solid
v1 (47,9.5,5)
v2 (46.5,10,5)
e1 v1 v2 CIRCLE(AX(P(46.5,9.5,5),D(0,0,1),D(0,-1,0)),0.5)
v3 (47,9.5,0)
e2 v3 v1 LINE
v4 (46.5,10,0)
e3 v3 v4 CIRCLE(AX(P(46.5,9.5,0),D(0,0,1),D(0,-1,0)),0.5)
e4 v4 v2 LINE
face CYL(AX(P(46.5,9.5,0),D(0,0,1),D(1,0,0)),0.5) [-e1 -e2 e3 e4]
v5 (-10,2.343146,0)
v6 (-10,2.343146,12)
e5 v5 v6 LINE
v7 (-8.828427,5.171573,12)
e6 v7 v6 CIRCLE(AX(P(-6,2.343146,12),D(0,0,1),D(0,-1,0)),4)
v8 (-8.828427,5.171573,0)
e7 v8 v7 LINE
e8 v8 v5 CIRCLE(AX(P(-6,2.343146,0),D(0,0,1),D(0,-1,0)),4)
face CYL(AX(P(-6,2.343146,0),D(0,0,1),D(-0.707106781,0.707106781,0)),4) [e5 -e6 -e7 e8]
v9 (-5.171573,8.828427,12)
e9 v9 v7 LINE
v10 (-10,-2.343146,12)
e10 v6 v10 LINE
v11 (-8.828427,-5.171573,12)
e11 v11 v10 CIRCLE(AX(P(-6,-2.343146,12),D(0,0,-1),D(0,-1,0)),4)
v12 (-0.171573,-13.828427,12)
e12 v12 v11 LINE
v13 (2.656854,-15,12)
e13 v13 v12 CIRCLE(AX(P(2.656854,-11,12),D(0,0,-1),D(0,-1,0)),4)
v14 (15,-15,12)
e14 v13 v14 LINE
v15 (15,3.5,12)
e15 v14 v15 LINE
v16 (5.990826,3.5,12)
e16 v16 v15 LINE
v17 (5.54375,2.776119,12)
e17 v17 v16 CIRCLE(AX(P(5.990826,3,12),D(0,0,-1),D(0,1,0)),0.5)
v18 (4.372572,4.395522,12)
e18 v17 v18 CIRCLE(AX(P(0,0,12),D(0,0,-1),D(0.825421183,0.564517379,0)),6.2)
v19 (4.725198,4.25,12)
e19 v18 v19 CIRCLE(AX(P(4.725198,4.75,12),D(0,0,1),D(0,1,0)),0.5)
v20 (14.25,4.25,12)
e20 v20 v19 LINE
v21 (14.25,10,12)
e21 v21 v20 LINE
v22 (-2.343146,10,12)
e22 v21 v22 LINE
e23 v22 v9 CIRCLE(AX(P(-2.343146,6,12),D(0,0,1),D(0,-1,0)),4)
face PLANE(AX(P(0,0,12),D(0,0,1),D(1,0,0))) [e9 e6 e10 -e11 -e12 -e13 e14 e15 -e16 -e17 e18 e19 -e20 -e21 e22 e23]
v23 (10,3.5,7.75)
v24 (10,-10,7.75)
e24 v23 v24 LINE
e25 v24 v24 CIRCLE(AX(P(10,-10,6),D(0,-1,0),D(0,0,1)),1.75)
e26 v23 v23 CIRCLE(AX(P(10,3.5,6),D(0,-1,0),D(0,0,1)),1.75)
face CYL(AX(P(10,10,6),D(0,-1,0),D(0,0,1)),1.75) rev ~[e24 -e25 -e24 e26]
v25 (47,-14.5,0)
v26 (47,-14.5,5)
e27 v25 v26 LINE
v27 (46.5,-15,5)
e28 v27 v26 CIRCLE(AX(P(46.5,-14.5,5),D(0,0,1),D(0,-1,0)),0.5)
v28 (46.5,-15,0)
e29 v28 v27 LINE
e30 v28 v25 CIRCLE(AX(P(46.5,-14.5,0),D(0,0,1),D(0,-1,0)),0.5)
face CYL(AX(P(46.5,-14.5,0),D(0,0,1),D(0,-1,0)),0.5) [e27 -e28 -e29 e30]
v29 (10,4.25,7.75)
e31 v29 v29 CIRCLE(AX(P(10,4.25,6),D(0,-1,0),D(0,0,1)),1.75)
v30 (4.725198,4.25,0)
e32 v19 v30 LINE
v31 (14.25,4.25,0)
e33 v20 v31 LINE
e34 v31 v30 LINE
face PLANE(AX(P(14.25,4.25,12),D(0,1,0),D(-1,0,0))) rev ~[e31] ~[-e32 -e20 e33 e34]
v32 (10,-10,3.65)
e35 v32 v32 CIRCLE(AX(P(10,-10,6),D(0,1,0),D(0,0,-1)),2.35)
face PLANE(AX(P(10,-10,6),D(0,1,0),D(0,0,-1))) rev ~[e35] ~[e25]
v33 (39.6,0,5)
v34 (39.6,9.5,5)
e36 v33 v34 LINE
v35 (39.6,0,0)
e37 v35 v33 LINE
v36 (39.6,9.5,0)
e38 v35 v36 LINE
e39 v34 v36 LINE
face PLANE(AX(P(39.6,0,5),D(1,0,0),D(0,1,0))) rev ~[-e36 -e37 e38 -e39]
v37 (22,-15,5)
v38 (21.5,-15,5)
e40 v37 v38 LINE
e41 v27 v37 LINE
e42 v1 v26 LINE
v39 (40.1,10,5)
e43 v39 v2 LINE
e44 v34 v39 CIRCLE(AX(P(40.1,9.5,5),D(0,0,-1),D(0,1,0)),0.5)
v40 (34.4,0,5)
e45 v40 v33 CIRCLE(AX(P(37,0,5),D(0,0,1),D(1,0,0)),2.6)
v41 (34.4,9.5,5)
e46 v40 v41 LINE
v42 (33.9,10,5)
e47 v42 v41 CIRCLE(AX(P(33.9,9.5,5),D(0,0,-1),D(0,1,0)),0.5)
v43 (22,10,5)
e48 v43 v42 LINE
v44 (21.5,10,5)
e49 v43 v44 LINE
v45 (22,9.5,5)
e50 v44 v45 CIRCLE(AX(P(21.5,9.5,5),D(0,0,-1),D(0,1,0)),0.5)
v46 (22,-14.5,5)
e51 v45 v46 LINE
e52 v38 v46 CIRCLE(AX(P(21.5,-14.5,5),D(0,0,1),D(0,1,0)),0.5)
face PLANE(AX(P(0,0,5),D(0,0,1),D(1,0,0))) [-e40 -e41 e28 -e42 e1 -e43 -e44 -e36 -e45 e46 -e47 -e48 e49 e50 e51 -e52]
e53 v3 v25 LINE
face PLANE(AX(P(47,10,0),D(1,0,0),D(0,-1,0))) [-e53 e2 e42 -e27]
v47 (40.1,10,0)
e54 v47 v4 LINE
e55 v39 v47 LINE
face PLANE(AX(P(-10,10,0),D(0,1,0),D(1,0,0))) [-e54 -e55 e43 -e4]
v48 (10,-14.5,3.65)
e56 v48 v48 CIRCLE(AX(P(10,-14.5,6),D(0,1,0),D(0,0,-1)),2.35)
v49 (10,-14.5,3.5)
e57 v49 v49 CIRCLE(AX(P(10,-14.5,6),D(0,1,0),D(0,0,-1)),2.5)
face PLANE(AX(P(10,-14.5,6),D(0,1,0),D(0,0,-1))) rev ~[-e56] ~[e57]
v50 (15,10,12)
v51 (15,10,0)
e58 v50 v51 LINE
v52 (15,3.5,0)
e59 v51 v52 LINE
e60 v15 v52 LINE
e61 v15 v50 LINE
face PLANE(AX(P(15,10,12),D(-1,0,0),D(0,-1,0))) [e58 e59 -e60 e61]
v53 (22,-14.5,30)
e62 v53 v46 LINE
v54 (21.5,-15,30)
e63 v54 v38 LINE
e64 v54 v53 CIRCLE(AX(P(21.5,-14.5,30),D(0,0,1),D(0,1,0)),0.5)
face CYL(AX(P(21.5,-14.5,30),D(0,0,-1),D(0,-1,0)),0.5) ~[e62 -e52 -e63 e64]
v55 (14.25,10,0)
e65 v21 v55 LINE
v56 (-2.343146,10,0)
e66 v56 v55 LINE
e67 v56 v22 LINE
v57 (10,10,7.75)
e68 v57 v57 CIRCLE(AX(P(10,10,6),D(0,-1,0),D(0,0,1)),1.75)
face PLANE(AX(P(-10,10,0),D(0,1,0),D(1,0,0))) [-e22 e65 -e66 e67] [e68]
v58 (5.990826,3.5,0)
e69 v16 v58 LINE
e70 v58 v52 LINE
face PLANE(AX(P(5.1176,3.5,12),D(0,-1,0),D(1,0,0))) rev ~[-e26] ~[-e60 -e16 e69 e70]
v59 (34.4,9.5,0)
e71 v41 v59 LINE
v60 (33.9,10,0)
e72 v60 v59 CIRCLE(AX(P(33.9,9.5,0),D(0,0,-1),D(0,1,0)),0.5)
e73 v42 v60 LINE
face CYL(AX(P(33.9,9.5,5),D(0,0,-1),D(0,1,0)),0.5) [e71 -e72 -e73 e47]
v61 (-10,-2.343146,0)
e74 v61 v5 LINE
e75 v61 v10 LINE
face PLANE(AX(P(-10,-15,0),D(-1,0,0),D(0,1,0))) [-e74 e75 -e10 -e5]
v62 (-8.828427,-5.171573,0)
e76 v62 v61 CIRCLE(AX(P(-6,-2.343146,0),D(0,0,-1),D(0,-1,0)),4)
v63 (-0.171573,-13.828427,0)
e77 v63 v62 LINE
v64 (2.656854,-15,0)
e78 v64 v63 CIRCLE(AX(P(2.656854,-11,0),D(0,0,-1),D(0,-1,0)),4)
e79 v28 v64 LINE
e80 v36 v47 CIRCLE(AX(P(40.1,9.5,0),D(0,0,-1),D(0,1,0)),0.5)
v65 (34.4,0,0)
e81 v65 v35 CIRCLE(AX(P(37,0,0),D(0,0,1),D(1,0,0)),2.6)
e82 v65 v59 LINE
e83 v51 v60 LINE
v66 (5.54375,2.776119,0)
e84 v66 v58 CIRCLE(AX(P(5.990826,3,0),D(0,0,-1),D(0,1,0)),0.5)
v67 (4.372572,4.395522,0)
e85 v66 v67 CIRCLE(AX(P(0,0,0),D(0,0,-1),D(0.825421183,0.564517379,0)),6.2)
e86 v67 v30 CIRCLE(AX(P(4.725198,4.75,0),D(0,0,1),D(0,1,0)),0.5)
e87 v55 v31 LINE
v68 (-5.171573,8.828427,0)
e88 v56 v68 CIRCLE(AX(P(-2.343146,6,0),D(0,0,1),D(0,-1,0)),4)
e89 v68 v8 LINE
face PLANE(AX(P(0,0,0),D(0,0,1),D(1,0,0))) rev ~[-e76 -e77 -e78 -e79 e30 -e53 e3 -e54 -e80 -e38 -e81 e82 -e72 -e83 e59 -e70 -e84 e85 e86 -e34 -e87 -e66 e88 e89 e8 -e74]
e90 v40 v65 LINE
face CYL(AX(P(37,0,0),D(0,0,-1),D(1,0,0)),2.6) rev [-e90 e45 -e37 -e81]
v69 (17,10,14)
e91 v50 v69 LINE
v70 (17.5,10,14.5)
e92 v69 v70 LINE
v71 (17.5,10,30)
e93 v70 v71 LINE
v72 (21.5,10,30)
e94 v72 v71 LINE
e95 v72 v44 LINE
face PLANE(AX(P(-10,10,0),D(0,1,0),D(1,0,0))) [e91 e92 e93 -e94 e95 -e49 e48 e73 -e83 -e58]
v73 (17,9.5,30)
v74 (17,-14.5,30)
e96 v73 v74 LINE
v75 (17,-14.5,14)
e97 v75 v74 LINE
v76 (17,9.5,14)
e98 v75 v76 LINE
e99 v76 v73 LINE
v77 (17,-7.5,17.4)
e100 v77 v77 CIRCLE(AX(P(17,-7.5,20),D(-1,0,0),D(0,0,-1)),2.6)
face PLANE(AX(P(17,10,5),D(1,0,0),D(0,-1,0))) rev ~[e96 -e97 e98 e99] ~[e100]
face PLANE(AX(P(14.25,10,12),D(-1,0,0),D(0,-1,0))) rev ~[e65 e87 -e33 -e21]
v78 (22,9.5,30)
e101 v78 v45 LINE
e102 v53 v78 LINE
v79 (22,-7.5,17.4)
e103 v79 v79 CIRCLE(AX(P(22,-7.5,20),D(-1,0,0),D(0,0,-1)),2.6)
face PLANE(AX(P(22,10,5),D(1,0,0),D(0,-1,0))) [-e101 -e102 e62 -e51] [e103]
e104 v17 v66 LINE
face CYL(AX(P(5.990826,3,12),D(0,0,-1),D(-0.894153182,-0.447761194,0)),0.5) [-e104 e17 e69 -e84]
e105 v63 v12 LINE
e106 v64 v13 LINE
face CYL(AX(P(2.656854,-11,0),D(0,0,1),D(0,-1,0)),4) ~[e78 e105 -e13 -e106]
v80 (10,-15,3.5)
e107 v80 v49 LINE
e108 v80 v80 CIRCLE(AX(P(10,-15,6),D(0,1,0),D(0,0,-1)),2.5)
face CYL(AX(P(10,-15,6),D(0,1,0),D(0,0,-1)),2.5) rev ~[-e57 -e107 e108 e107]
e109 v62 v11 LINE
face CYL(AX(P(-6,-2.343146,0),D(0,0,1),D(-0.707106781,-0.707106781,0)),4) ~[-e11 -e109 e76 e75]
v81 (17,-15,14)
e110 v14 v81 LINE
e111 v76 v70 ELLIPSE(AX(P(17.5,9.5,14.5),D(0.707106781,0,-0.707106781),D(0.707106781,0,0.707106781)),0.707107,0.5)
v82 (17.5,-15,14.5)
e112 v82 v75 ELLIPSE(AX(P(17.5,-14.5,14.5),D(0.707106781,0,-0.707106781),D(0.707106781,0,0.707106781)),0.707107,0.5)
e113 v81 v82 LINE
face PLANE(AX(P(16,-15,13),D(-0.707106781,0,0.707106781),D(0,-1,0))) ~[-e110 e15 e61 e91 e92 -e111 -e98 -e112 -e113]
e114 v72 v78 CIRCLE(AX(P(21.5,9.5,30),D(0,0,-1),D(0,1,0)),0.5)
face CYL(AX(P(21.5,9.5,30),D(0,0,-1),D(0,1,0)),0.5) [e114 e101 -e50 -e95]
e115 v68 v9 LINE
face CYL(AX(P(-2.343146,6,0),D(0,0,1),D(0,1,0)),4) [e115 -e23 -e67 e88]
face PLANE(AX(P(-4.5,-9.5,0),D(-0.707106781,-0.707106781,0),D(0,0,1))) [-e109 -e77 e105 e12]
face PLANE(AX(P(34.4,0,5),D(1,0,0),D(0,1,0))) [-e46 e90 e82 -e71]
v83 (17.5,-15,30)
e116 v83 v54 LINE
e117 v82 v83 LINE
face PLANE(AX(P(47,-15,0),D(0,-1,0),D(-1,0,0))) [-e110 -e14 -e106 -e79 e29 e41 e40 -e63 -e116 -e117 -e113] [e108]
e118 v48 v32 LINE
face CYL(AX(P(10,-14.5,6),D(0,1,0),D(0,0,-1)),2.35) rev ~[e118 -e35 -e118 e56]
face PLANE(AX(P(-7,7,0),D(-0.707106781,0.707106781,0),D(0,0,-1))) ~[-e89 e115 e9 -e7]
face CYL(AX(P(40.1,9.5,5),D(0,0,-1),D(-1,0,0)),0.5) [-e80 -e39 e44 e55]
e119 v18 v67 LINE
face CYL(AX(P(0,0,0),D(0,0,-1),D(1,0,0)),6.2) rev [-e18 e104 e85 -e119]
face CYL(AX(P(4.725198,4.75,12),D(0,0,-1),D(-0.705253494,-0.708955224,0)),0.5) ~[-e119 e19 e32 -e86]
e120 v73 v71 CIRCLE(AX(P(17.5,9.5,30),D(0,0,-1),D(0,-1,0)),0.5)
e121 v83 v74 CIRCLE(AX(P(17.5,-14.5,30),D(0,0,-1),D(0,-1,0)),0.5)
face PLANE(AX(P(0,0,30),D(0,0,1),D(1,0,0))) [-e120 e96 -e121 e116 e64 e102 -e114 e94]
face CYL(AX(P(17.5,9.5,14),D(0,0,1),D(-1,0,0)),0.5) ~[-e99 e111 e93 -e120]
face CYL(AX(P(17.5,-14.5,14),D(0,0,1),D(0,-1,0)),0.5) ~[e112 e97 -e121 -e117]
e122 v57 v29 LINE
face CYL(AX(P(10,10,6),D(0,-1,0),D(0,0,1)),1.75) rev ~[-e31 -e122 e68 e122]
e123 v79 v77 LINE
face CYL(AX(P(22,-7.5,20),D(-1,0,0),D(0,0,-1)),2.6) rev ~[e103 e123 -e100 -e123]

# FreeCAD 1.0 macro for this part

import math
import FreeCAD as App
import Part
import Sketcher
from FreeCAD import Vector


def edges_at(feature, points):
    """Names of the edges that pass closest to the given points."""
    edges = feature.Shape.Edges
    near = lambda p: min(range(len(edges)), key=lambda i: edges[i].distToShape(Part.Vertex(*p))[0])
    return sorted({f"Edge{near(p) + 1}" for p in points})

doc = App.newDocument("Part")
body = doc.addObject("PartDesign::Body", "Body")

# Sketch on XY plane
sketch1 = body.newObject("Sketcher::SketchObject", "Sketch")
sketch1.AttachmentSupport = (doc.getObject("XY_Plane"), [""])
sketch1.MapMode = "FlatFace"
sketch1.addGeometry(Part.LineSegment(Vector(47, 10, 0), Vector(-10, 10, 0)), False)
sketch1.addGeometry(Part.LineSegment(Vector(-10, 10, 0), Vector(-10, -15, 0)), False)
sketch1.addGeometry(Part.LineSegment(Vector(-10, -15, 0), Vector(47, -15, 0)), False)
sketch1.addGeometry(Part.LineSegment(Vector(47, -15, 0), Vector(47, 10, 0)), False)
sketch1.addGeometry(Part.Circle(Vector(0, 0, 0), Vector(0, 0, 1), 6.2), False)
sketch1.addGeometry(Part.Circle(Vector(37, 0, 0), Vector(0, 0, 1), 2.6), False)
sketch1.addConstraint(Sketcher.Constraint("Coincident", 0, 2, 1, 1))
sketch1.addConstraint(Sketcher.Constraint("Coincident", 1, 2, 2, 1))
sketch1.addConstraint(Sketcher.Constraint("Coincident", 2, 2, 3, 1))
sketch1.addConstraint(Sketcher.Constraint("Coincident", 3, 2, 0, 1))
sketch1.addConstraint(Sketcher.Constraint("Horizontal", 0))
sketch1.addConstraint(Sketcher.Constraint("Vertical", 1))
sketch1.addConstraint(Sketcher.Constraint("Horizontal", 2))
sketch1.addConstraint(Sketcher.Constraint("Vertical", 3))
sketch1.addConstraint(Sketcher.Constraint("Coincident", 4, 3, -1, 1))
sketch1.addConstraint(Sketcher.Constraint("PointOnObject", 5, 3, -1))
sketch1.addConstraint(Sketcher.Constraint("Diameter", 4, 12.4))
sketch1.addConstraint(Sketcher.Constraint("Diameter", 5, 5.2))
sketch1.addConstraint(Sketcher.Constraint("DistanceY", 1, 2, 1, 1, 25.0))
sketch1.addConstraint(Sketcher.Constraint("DistanceX", -1, 1, 5, 3, 37.0))
sketch1.addConstraint(Sketcher.Constraint("DistanceX", 0, 2, -1, 1, 10.0))
sketch1.addConstraint(Sketcher.Constraint("DistanceY", -1, 1, 0, 2, 10.0))
sketch1.addConstraint(Sketcher.Constraint("DistanceX", 5, 3, 2, 2, 10.0))
pad1 = body.newObject("PartDesign::Pad", "Pad")
pad1.Profile = sketch1
pad1.Length = 5

# Sketch on XY plane
sketch2 = body.newObject("Sketcher::SketchObject", "Sketch001")
sketch2.AttachmentSupport = (doc.getObject("XY_Plane"), [""])
sketch2.MapMode = "FlatFace"
sketch2.AttachmentOffset = App.Placement(Vector(0, 0, 5), App.Rotation())
sketch2.addGeometry(Part.LineSegment(Vector(22, -15, 0), Vector(22, 10, 0)), False)
sketch2.addGeometry(Part.LineSegment(Vector(22, 10, 0), Vector(-10, 10, 0)), False)
sketch2.addGeometry(Part.LineSegment(Vector(-10, 10, 0), Vector(-10, -15, 0)), False)
sketch2.addGeometry(Part.LineSegment(Vector(-10, -15, 0), Vector(22, -15, 0)), False)
sketch2.addGeometry(Part.Circle(Vector(0, 0, 0), Vector(0, 0, 1), 6), False)
sketch2.addConstraint(Sketcher.Constraint("Coincident", 0, 2, 1, 1))
sketch2.addConstraint(Sketcher.Constraint("Coincident", 1, 2, 2, 1))
sketch2.addConstraint(Sketcher.Constraint("Coincident", 2, 2, 3, 1))
sketch2.addConstraint(Sketcher.Constraint("Coincident", 3, 2, 0, 1))
sketch2.addConstraint(Sketcher.Constraint("Vertical", 0))
sketch2.addConstraint(Sketcher.Constraint("Horizontal", 1))
sketch2.addConstraint(Sketcher.Constraint("Vertical", 2))
sketch2.addConstraint(Sketcher.Constraint("Horizontal", 3))
sketch2.addConstraint(Sketcher.Constraint("Coincident", 4, 3, -1, 1))
sketch2.addConstraint(Sketcher.Constraint("DistanceX", -1, 1, 0, 2, 22.0))
sketch2.addConstraint(Sketcher.Constraint("Diameter", 4, 12.4))
sketch2.addConstraint(Sketcher.Constraint("DistanceX", 1, 2, 1, 1, 32.0))
sketch2.addConstraint(Sketcher.Constraint("DistanceY", 0, 1, 0, 2, 25.0))
sketch2.addConstraint(Sketcher.Constraint("DistanceY", -1, 1, 0, 2, 10.0))
pad2 = body.newObject("PartDesign::Pad", "Pad001")
pad2.Profile = sketch2
pad2.Length = 7

# Sketch on XY plane
sketch3 = body.newObject("Sketcher::SketchObject", "Sketch002")
sketch3.AttachmentSupport = (doc.getObject("XY_Plane"), [""])
sketch3.MapMode = "FlatFace"
sketch3.AttachmentOffset = App.Placement(Vector(0, 0, 5), App.Rotation())
sketch3.addGeometry(Part.LineSegment(Vector(22, 10, 0), Vector(17, 10, 0)), False)
sketch3.addGeometry(Part.LineSegment(Vector(17, 10, 0), Vector(17, -15, 0)), False)
sketch3.addGeometry(Part.LineSegment(Vector(17, -15, 0), Vector(22, -15, 0)), False)
sketch3.addGeometry(Part.LineSegment(Vector(22, -15, 0), Vector(22, 10, 0)), False)
sketch3.addConstraint(Sketcher.Constraint("Coincident", 0, 2, 1, 1))
sketch3.addConstraint(Sketcher.Constraint("Coincident", 1, 2, 2, 1))
sketch3.addConstraint(Sketcher.Constraint("Coincident", 2, 2, 3, 1))
sketch3.addConstraint(Sketcher.Constraint("Coincident", 3, 2, 0, 1))
sketch3.addConstraint(Sketcher.Constraint("Horizontal", 0))
sketch3.addConstraint(Sketcher.Constraint("Vertical", 1))
sketch3.addConstraint(Sketcher.Constraint("Horizontal", 2))
sketch3.addConstraint(Sketcher.Constraint("Vertical", 3))
sketch3.addConstraint(Sketcher.Constraint("DistanceX", 0, 2, 0, 1, 5.0))
sketch3.addConstraint(Sketcher.Constraint("DistanceY", 1, 2, 1, 1, 25.0))
sketch3.addConstraint(Sketcher.Constraint("DistanceX", -1, 1, 0, 2, 17.0))
sketch3.addConstraint(Sketcher.Constraint("DistanceY", -1, 1, 0, 2, 10.0))
pad3 = body.newObject("PartDesign::Pad", "Pad002")
pad3.Profile = sketch3
pad3.Length = 25
doc.recompute()

chamfer = body.newObject("PartDesign::Chamfer", "Chamfer")
chamfer.Base = (pad3, edges_at(pad3, [(-10, 10, 6)]))
chamfer.Size = 6
doc.recompute()

chamfer2 = body.newObject("PartDesign::Chamfer", "Chamfer001")
chamfer2.Base = (chamfer, edges_at(chamfer, [(17, -2.5, 12)]))
chamfer2.Size = 2
doc.recompute()

chamfer3 = body.newObject("PartDesign::Chamfer", "Chamfer002")
chamfer3.Base = (chamfer2, edges_at(chamfer2, [(-10, -15, 6)]))
chamfer3.Size = 11

# Sketch on YZ plane
sketch4 = body.newObject("Sketcher::SketchObject", "Sketch003")
sketch4.AttachmentSupport = (doc.getObject("YZ_Plane"), [""])
sketch4.MapMode = "FlatFace"
sketch4.AttachmentOffset = App.Placement(Vector(0, 0, 22), App.Rotation())
sketch4.addGeometry(Part.Circle(Vector(-7.5, 20, 0), Vector(0, 0, 1), 2.6), False)
sketch4.addConstraint(Sketcher.Constraint("Diameter", 0, 5.2))
sketch4.addConstraint(Sketcher.Constraint("DistanceY", -1, 1, 0, 3, 20.0))
sketch4.addConstraint(Sketcher.Constraint("DistanceX", 0, 3, -1, 1, 7.5))
doc.recompute()
hole = body.newObject("PartDesign::Hole", "Hole")
hole.Profile = sketch4
hole.ThreadType = "None"
hole.Diameter = 5.2
hole.DepthType = "ThroughAll"

# Sketch on XY plane
sketch5 = body.newObject("Sketcher::SketchObject", "Sketch004")
sketch5.AttachmentSupport = (doc.getObject("XY_Plane"), [""])
sketch5.MapMode = "FlatFace"
sketch5.AttachmentOffset = App.Placement(Vector(0, 0, 5), App.Rotation())
sketch5.addGeometry(Part.LineSegment(Vector(39.6, 10, 0), Vector(34.4, 10, 0)), False)
sketch5.addGeometry(Part.LineSegment(Vector(34.4, 10, 0), Vector(34.4, 0, 0)), False)
sketch5.addGeometry(Part.ArcOfCircle(Part.Circle(Vector(37, 0, 0), Vector(0, 0, 1), 2.6), math.radians(0), math.radians(180)), False)
sketch5.addGeometry(Part.LineSegment(Vector(39.6, 0, 0), Vector(39.6, 10, 0)), False)
sketch5.addConstraint(Sketcher.Constraint("Coincident", 0, 2, 1, 1))
sketch5.addConstraint(Sketcher.Constraint("Tangent", 1, 2, 2, 2))
sketch5.addConstraint(Sketcher.Constraint("Tangent", 2, 1, 3, 1))
sketch5.addConstraint(Sketcher.Constraint("Coincident", 3, 2, 0, 1))
sketch5.addConstraint(Sketcher.Constraint("Horizontal", 0))
sketch5.addConstraint(Sketcher.Constraint("Vertical", 1))
sketch5.addConstraint(Sketcher.Constraint("Vertical", 3))
sketch5.addConstraint(Sketcher.Constraint("PointOnObject", 2, 3, -1))
sketch5.addConstraint(Sketcher.Constraint("Radius", 2, 2.6))
sketch5.addConstraint(Sketcher.Constraint("DistanceY", 1, 2, 1, 1, 10.0))
sketch5.addConstraint(Sketcher.Constraint("DistanceX", -1, 1, 2, 3, 37.0))
pocket1 = body.newObject("PartDesign::Pocket", "Pocket")
pocket1.Profile = sketch5
pocket1.Type = "ThroughAll"

# Sketch on XY plane
sketch6 = body.newObject("Sketcher::SketchObject", "Sketch005")
sketch6.AttachmentSupport = (doc.getObject("XY_Plane"), [""])
sketch6.MapMode = "FlatFace"
sketch6.AttachmentOffset = App.Placement(Vector(0, 0, 12), App.Rotation())
sketch6.addGeometry(Part.LineSegment(Vector(15, 3.5, 0), Vector(15, 10, 0)), False)
sketch6.addGeometry(Part.LineSegment(Vector(15, 10, 0), Vector(14.2, 10, 0)), False)
sketch6.addGeometry(Part.LineSegment(Vector(14.2, 10, 0), Vector(14.2, 4.2, 0)), False)
sketch6.addGeometry(Part.LineSegment(Vector(14.2, 4.2, 0), Vector(4.5, 4.2, 0)), False)
sketch6.addGeometry(Part.ArcOfCircle(Part.Circle(Vector(0, 0, 0), Vector(0, 0, 1), 6.2), math.radians(34.37), math.radians(43.27)), False)
sketch6.addGeometry(Part.LineSegment(Vector(5.1, 3.5, 0), Vector(15, 3.5, 0)), False)
sketch6.addConstraint(Sketcher.Constraint("Coincident", 0, 2, 1, 1))
sketch6.addConstraint(Sketcher.Constraint("Coincident", 1, 2, 2, 1))
sketch6.addConstraint(Sketcher.Constraint("Coincident", 2, 2, 3, 1))
sketch6.addConstraint(Sketcher.Constraint("Coincident", 3, 2, 4, 2))
sketch6.addConstraint(Sketcher.Constraint("Coincident", 4, 1, 5, 1))
sketch6.addConstraint(Sketcher.Constraint("Coincident", 5, 2, 0, 1))
sketch6.addConstraint(Sketcher.Constraint("Vertical", 0))
sketch6.addConstraint(Sketcher.Constraint("Horizontal", 1))
sketch6.addConstraint(Sketcher.Constraint("Vertical", 2))
sketch6.addConstraint(Sketcher.Constraint("Horizontal", 3))
sketch6.addConstraint(Sketcher.Constraint("Horizontal", 5))
sketch6.addConstraint(Sketcher.Constraint("Coincident", 4, 3, -1, 1))
sketch6.addConstraint(Sketcher.Constraint("DistanceX", 1, 2, 1, 1, 0.75))
sketch6.addConstraint(Sketcher.Constraint("DistanceY", -1, 1, 4, 1, 3.5))
sketch6.addConstraint(Sketcher.Constraint("Radius", 4, 6.2))
sketch6.addConstraint(Sketcher.Constraint("DistanceY", 4, 1, 3, 2, 0.75))
sketch6.addConstraint(Sketcher.Constraint("DistanceY", 0, 1, 0, 2, 6.5))
sketch6.addConstraint(Sketcher.Constraint("DistanceX", -1, 1, 0, 2, 15.0))
pocket2 = body.newObject("PartDesign::Pocket", "Pocket001")
pocket2.Profile = sketch6
pocket2.Type = "ThroughAll"
doc.recompute()

fillet = body.newObject("PartDesign::Fillet", "Fillet")
fillet.Base = (pocket2, edges_at(pocket2, [(5.118, 3.5, 6)]))
fillet.Radius = 0.5
doc.recompute()

fillet2 = body.newObject("PartDesign::Fillet", "Fillet001")
fillet2.Base = (fillet, edges_at(fillet, [(4.514, 4.25, 6)]))
fillet2.Radius = 0.5

# Sketch on XZ plane
sketch7 = body.newObject("Sketcher::SketchObject", "Sketch006")
sketch7.AttachmentSupport = (doc.getObject("XZ_Plane"), [""])
sketch7.MapMode = "FlatFace"
sketch7.AttachmentOffset = App.Placement(Vector(0, 0, -10), App.Rotation())
sketch7.addGeometry(Part.Circle(Vector(10, 6, 0), Vector(0, 0, 1), 1.8), False)
sketch7.addConstraint(Sketcher.Constraint("Diameter", 0, 3.5))
sketch7.addConstraint(Sketcher.Constraint("DistanceX", -1, 1, 0, 3, 10.0))
sketch7.addConstraint(Sketcher.Constraint("DistanceY", -1, 1, 0, 3, 6.0))
doc.recompute()
hole2 = body.newObject("PartDesign::Hole", "Hole001")
hole2.Profile = sketch7
hole2.ThreadType = "None"
hole2.Diameter = 3.5
hole2.DepthType = "ThroughAll"
hole2.Reversed = True

# Sketch on XZ plane
sketch8 = body.newObject("Sketcher::SketchObject", "Sketch007")
sketch8.AttachmentSupport = (doc.getObject("XZ_Plane"), [""])
sketch8.MapMode = "FlatFace"
sketch8.AttachmentOffset = App.Placement(Vector(0, 0, 15), App.Rotation())
sketch8.addGeometry(Part.Circle(Vector(10, 6, 0), Vector(0, 0, 1), 2.4), False)
sketch8.addConstraint(Sketcher.Constraint("Diameter", 0, 4.7))
sketch8.addConstraint(Sketcher.Constraint("DistanceX", -1, 1, 0, 3, 10.0))
sketch8.addConstraint(Sketcher.Constraint("DistanceY", -1, 1, 0, 3, 6.0))
doc.recompute()
hole3 = body.newObject("PartDesign::Hole", "Hole002")
hole3.Profile = sketch8
hole3.ThreadType = "None"
hole3.Diameter = 4.7
hole3.DepthType = "Dimension"
hole3.Depth = 5
hole3.DrillPoint = "Flat"
hole3.HoleCutType = "Counterbore"
hole3.HoleCutDiameter = 5
hole3.HoleCutDepth = 0.5
doc.recompute()

fillet3 = body.newObject("PartDesign::Fillet", "Fillet002")
fillet3.Base = (hole3, edges_at(hole3, [
    (34.4, 10, 2.5),
    (39.6, 10, 2.5),
    (47, 10, 2.5),
    (47, -15, 2.5),
    (22, 10, 17.5),
    (17, 10, 22),
    (22, -15, 17.5),
    (17, -15, 22),
]))
fillet3.Radius = 0.5
doc.recompute()

fillet4 = body.newObject("PartDesign::Fillet", "Fillet003")
fillet4.Base = (fillet3, edges_at(fillet3, [
    (-4, 10, 6),
    (-10, 4, 6),
    (-10, -4, 6),
    (1, -15, 6),
]))
fillet4.Radius = 4

doc.recompute()
